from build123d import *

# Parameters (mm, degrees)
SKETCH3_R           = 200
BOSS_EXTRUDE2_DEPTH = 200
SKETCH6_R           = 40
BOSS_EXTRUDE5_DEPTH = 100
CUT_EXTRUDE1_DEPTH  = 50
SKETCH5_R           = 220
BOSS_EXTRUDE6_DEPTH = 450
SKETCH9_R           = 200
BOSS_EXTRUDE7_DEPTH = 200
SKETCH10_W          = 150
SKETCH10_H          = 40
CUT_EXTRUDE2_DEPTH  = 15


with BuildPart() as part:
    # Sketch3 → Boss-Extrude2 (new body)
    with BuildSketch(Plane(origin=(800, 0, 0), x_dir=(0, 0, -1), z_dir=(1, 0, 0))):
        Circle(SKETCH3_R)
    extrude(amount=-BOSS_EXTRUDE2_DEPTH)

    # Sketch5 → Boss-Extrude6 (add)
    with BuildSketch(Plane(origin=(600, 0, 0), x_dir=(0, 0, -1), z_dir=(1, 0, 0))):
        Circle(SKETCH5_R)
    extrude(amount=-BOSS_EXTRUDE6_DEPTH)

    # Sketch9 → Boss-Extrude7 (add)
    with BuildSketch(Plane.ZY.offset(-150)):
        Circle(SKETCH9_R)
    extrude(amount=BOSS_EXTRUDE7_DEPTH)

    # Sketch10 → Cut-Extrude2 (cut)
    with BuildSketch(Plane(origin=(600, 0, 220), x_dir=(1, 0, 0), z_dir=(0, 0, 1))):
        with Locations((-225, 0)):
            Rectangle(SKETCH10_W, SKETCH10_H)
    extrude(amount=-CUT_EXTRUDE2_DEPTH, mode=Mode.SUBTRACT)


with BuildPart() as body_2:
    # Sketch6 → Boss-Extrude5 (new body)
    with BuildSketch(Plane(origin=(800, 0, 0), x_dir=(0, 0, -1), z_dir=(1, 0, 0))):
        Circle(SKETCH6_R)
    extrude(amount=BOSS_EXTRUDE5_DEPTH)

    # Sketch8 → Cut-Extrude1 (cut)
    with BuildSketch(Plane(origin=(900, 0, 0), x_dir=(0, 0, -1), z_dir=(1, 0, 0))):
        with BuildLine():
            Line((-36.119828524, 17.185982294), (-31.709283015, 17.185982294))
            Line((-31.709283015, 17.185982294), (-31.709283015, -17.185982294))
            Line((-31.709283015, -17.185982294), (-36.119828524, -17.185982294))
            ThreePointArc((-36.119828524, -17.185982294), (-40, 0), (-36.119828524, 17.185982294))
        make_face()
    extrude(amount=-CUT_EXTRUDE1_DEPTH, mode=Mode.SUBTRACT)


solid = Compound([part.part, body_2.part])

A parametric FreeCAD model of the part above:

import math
import FreeCAD as App
import Part
import Sketcher
Q = App.Units.Quantity

doc = App.newDocument("Part")
body = doc.addObject("PartDesign::Body", "Body")

sketch1 = body.newObject("Sketcher::SketchObject", "Sketch")
sketch1.AttachmentSupport = (doc.getObject("YZ_Plane"), [""])
sketch1.MapMode = "FlatFace"
sketch1.AttachmentOffset = App.Placement(App.Vector(0, 0, 800), App.Rotation())
sketch1.addGeometry(Part.Circle(App.Vector(0, 0, 0), App.Vector(0, 0, 1), 200), False)
sketch1.addConstraint([
    Sketcher.Constraint("Coincident", 0, 3, -1, 1),
    Sketcher.Constraint("Diameter", 0, Q("400 mm")),
])
pad1 = body.newObject("PartDesign::Pad", "Pad")
pad1.Profile = sketch1
pad1.Length = 200
pad1.Reversed = True

sketch2 = body.newObject("Sketcher::SketchObject", "Sketch001")
sketch2.AttachmentSupport = (doc.getObject("YZ_Plane"), [""])
sketch2.MapMode = "FlatFace"
sketch2.AttachmentOffset = App.Placement(App.Vector(0, 0, 600), App.Rotation())
sketch2.addGeometry(Part.Circle(App.Vector(0, 0, 0), App.Vector(0, 0, 1), 220), False)
sketch2.addConstraint([
    Sketcher.Constraint("Coincident", 0, 3, -1, 1),
    Sketcher.Constraint("Diameter", 0, Q("440 mm")),
])
pad2 = body.newObject("PartDesign::Pad", "Pad001")
pad2.Profile = sketch2
pad2.Length = 450
pad2.Reversed = True

sketch3 = body.newObject("Sketcher::SketchObject", "Sketch002")
sketch3.AttachmentSupport = (doc.getObject("YZ_Plane"), [""])
sketch3.MapMode = "FlatFace"
sketch3.AttachmentOffset = App.Placement(App.Vector(0, 0, 150), App.Rotation())
sketch3.addGeometry(Part.Circle(App.Vector(0, 0, 0), App.Vector(0, 0, 1), 200), False)
sketch3.addConstraint([
    Sketcher.Constraint("Coincident", 0, 3, -1, 1),
    Sketcher.Constraint("Diameter", 0, Q("400 mm")),
])
pad3 = body.newObject("PartDesign::Pad", "Pad002")
pad3.Profile = sketch3
pad3.Length = 200
pad3.Reversed = True

sketch4 = body.newObject("Sketcher::SketchObject", "Sketch003")
sketch4.AttachmentSupport = (doc.getObject("XY_Plane"), [""])
sketch4.MapMode = "FlatFace"
sketch4.AttachmentOffset = App.Placement(App.Vector(0, 0, 220), App.Rotation())
sketch4.addGeometry([
    Part.LineSegment(App.Vector(300, 20, 0), App.Vector(300, -20, 0)),
    Part.LineSegment(App.Vector(300, -20, 0), App.Vector(450, -20, 0)),
    Part.LineSegment(App.Vector(450, -20, 0), App.Vector(450, 20, 0)),
    Part.LineSegment(App.Vector(450, 20, 0), App.Vector(300, 20, 0)),
], False)
sketch4.addConstraint([
    Sketcher.Constraint("Coincident", 0, 2, 1, 1),
    Sketcher.Constraint("Coincident", 1, 2, 2, 1),
    Sketcher.Constraint("Coincident", 2, 2, 3, 1),
    Sketcher.Constraint("Coincident", 3, 2, 0, 1),
    Sketcher.Constraint("Vertical", 0),
    Sketcher.Constraint("Horizontal", 1),
    Sketcher.Constraint("Vertical", 2),
    Sketcher.Constraint("Horizontal", 3),
    Sketcher.Constraint("DistanceX", 1, 1, 1, 2, Q("150 mm")),
    Sketcher.Constraint("DistanceY", 0, 2, 0, 1, Q("40 mm")),
    Sketcher.Constraint("DistanceX", -1, 1, 0, 2, Q("300 mm")),
    Sketcher.Constraint("DistanceY", 0, 2, -1, 1, Q("20 mm")),
])
pocket1 = body.newObject("PartDesign::Pocket", "Pocket")
pocket1.Profile = sketch4
pocket1.Length = 15
body2 = doc.addObject("PartDesign::Body", "Body001")

sketch5 = body2.newObject("Sketcher::SketchObject", "Sketch004")
sketch5.AttachmentSupport = (doc.getObject("YZ_Plane001"), [""])
sketch5.MapMode = "FlatFace"
sketch5.AttachmentOffset = App.Placement(App.Vector(0, 0, 800), App.Rotation())
sketch5.addGeometry(Part.Circle(App.Vector(0, 0, 0), App.Vector(0, 0, 1), 40), False)
sketch5.addConstraint([
    Sketcher.Constraint("Coincident", 0, 3, -1, 1),
    Sketcher.Constraint("Diameter", 0, Q("80 mm")),
])
pad4 = body2.newObject("PartDesign::Pad", "Pad003")
pad4.Profile = sketch5
pad4.Length = 100

sketch6 = body2.newObject("Sketcher::SketchObject", "Sketch005")
sketch6.AttachmentSupport = (doc.getObject("YZ_Plane001"), [""])
sketch6.MapMode = "FlatFace"
sketch6.AttachmentOffset = App.Placement(App.Vector(0, 0, 900), App.Rotation())
sketch6.addGeometry([
    Part.LineSegment(App.Vector(17.2, 31.7, 0), App.Vector(17.2, 36.1, 0)),
    Part.ArcOfCircle(Part.Circle(App.Vector(0, 0, 0), App.Vector(0, 0, 1), 40), math.radians(65), math.radians(115)),
    Part.LineSegment(App.Vector(-17.2, 36.1, 0), App.Vector(-17.2, 31.7, 0)),
    Part.LineSegment(App.Vector(-17.2, 31.7, 0), App.Vector(17.2, 31.7, 0)),
], False)
sketch6.addConstraint([
    Sketcher.Constraint("Coincident", 0, 2, 1, 1),
    Sketcher.Constraint("Coincident", 1, 2, 2, 1),
    Sketcher.Constraint("Coincident", 2, 2, 3, 1),
    Sketcher.Constraint("Coincident", 3, 2, 0, 1),
    Sketcher.Constraint("Vertical", 0),
    Sketcher.Constraint("Vertical", 2),
    Sketcher.Constraint("Horizontal", 3),
    Sketcher.Constraint("Coincident", 1, 3, -1, 1),
    Sketcher.Constraint("Horizontal", 0, 2, 1, 2),
    Sketcher.Constraint("Radius", 1, Q("40 mm")),
    Sketcher.Constraint("DistanceX", 3, 1, 3, 2, Q("34.371965 mm")),
    Sketcher.Constraint("DistanceY", 0, 1, 0, 2, Q("4.410546 mm")),
])
pocket2 = body2.newObject("PartDesign::Pocket", "Pocket001")
pocket2.Profile = sketch6
pocket2.Length = 50

doc.recompute()
